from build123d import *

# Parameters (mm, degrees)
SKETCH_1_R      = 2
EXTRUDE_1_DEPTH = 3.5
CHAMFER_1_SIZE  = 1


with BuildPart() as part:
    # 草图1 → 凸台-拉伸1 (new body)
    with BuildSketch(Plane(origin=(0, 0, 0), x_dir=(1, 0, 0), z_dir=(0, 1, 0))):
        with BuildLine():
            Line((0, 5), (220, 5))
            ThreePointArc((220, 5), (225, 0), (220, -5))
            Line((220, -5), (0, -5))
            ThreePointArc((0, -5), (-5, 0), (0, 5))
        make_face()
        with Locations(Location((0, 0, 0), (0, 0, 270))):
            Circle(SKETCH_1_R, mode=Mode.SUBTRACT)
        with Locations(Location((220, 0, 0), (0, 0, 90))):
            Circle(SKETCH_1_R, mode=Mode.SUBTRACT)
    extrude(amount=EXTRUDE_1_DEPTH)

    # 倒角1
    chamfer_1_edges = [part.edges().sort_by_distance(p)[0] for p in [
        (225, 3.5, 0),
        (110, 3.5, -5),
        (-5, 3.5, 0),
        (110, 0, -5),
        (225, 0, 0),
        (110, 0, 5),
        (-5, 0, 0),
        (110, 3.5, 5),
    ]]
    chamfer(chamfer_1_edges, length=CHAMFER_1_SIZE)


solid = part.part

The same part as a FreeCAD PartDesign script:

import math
import FreeCAD as App
import Part
import Sketcher
from FreeCAD import Vector
Q = App.Units.Quantity


def edges_at(feature, points):
    """Names of the edges that pass closest to the given points."""
    edges = feature.Shape.Edges
    near = lambda p: min(range(len(edges)), key=lambda i: edges[i].distToShape(Part.Vertex(*p))[0])
    return sorted({f"Edge{near(p) + 1}" for p in points})

doc = App.newDocument("Part")
body = doc.addObject("PartDesign::Body", "Body")

# Sketch on XZ plane
sketch1 = body.newObject("Sketcher::SketchObject", "Sketch")
sketch1.AttachmentSupport = (doc.getObject("XZ_Plane"), [""])
sketch1.MapMode = "FlatFace"
sketch1.addGeometry(Part.LineSegment(Vector(220, -5, 0), Vector(0, -5, 0)), False)
sketch1.addGeometry(Part.ArcOfCircle(Part.Circle(Vector(0, 0, 0), Vector(0, 0, 1), 5), math.radians(90), math.radians(270)), False)
sketch1.addGeometry(Part.LineSegment(Vector(0, 5, 0), Vector(220, 5, 0)), False)
sketch1.addGeometry(Part.ArcOfCircle(Part.Circle(Vector(220, 0, 0), Vector(0, 0, 1), 5), math.radians(-90), math.radians(90)), False)
sketch1.addGeometry(Part.Circle(Vector(220, 0, 0), Vector(0, 0, 1), 2), False)
sketch1.addGeometry(Part.Circle(Vector(0, 0, 0), Vector(0, 0, 1), 2), False)
sketch1.addConstraint(Sketcher.Constraint("Tangent", 0, 2, 1, 2))
sketch1.addConstraint(Sketcher.Constraint("Tangent", 1, 1, 2, 1))
sketch1.addConstraint(Sketcher.Constraint("Tangent", 2, 2, 3, 2))
sketch1.addConstraint(Sketcher.Constraint("Tangent", 3, 1, 0, 1))
sketch1.addConstraint(Sketcher.Constraint("Horizontal", 0))
sketch1.addConstraint(Sketcher.Constraint("Horizontal", 2))
sketch1.addConstraint(Sketcher.Constraint("Coincident", 1, 3, -1, 1))
sketch1.addConstraint(Sketcher.Constraint("Coincident", 5, 3, -1, 1))
sketch1.addConstraint(Sketcher.Constraint("Coincident", 4, 3, 3, 3))
sketch1.addConstraint(Sketcher.Constraint("Equal", 4, 5))
sketch1.addConstraint(Sketcher.Constraint("Diameter", 4, Q("4 mm")))
sketch1.addConstraint(Sketcher.Constraint("Radius", 1, Q("5 mm")))
sketch1.addConstraint(Sketcher.Constraint("DistanceX", 0, 2, 0, 1, Q("220 mm")))
pad1 = body.newObject("PartDesign::Pad", "Pad")
pad1.Profile = sketch1
pad1.Length = 3.5
pad1.Reversed = True
doc.recompute()

chamfer = body.newObject("PartDesign::Chamfer", "Chamfer")
chamfer.Base = (pad1, edges_at(pad1, [
    (225, 3.5, 0),
    (110, 3.5, -5),
    (-5, 3.5, 0),
    (110, 0, -5),
    (225, 0, 0),
    (110, 0, 5),
    (-5, 0, 0),
    (110, 3.5, 5),
]))
chamfer.Size = 1

doc.recompute()
